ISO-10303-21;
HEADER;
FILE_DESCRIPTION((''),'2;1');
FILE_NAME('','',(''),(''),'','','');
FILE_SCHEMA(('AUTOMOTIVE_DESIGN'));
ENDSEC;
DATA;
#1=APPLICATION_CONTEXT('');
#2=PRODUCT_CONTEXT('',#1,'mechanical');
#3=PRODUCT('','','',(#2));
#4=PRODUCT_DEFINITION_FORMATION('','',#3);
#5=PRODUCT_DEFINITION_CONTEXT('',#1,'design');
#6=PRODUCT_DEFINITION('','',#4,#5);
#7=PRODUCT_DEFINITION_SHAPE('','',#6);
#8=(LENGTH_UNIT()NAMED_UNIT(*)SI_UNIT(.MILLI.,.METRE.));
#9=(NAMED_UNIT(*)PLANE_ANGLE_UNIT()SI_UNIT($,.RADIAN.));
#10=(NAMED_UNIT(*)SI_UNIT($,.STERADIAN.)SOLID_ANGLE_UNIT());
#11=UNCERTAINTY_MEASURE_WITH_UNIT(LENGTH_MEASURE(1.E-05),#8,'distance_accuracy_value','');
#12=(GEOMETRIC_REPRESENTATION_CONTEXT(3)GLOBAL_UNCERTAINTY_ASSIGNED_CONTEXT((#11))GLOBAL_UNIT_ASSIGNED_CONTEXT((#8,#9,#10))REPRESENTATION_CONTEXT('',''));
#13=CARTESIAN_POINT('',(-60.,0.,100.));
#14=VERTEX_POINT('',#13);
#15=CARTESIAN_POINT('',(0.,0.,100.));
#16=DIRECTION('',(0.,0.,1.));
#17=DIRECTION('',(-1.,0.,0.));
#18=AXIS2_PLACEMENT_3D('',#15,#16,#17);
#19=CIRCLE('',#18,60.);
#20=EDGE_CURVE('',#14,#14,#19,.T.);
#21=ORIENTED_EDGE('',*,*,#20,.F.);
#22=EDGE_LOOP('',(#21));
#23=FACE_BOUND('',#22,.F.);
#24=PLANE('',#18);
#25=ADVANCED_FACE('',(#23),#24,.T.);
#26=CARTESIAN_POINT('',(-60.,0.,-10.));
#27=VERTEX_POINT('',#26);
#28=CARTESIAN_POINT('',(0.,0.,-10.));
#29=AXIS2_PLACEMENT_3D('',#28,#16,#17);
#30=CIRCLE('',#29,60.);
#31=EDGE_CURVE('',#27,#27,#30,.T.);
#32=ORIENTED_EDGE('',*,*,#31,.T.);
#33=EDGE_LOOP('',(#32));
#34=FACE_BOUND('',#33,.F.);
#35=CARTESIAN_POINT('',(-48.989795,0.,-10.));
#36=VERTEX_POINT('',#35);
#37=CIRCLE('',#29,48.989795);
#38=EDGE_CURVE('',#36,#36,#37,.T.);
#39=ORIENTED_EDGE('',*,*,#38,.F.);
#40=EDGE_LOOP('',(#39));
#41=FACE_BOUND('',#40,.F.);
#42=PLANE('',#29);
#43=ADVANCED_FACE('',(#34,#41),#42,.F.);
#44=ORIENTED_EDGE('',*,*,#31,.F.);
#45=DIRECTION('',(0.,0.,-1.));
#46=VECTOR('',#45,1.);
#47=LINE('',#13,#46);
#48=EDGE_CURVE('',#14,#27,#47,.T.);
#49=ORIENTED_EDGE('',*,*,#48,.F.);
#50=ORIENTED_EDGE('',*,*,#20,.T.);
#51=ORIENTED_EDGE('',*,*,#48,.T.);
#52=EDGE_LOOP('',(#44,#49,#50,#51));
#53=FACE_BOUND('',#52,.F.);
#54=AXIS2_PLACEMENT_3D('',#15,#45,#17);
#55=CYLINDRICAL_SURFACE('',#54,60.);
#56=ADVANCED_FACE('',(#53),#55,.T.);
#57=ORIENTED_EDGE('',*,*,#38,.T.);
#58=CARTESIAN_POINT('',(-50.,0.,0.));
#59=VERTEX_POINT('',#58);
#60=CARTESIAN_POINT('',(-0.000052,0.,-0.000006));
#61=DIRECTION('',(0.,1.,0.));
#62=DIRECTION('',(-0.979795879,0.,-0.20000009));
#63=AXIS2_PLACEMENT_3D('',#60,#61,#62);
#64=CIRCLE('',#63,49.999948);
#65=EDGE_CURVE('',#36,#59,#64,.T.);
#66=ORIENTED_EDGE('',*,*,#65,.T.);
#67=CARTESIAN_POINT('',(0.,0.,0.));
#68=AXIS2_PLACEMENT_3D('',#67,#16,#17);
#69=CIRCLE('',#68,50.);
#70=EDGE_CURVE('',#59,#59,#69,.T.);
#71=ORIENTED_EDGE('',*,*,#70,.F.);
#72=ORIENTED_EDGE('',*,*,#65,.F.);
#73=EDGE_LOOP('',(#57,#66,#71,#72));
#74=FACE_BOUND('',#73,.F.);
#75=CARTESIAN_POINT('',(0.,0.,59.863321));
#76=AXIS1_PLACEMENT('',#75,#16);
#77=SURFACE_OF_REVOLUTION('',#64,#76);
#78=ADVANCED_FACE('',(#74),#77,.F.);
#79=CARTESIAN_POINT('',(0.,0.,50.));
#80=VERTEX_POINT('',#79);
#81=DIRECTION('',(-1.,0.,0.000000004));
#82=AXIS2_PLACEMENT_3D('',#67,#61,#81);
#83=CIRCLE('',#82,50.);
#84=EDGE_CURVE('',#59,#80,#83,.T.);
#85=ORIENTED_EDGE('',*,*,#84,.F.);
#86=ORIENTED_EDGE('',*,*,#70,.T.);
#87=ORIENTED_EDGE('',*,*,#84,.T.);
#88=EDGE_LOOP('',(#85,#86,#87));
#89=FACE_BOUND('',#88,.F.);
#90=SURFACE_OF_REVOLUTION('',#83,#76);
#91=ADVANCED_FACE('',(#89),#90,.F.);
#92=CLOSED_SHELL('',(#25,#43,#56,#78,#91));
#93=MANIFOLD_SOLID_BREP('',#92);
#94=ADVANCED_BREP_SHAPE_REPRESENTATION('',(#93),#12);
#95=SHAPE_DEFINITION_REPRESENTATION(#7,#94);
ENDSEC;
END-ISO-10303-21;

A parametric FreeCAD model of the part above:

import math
import FreeCAD as App
import Part
import Sketcher

V = App.Vector
Q = App.Units.Quantity

doc = App.newDocument("Part")
params = doc.addObject("Spreadsheet::Sheet", "Params")
for row, (alias, value) in enumerate([
    ("sketch1_radius", "50 mm"),
    ("sketch1_width", "60 mm"),
    ("sketch1_height", "50 mm"),
    ("sketch1_height2", "110 mm"),
    ("revolution_angle", "360 deg"),
], start=1):
    params.set(f"A{row}", alias)
    params.set(f"B{row}", "=" + value)
    params.setAlias(f"B{row}", alias)

body = doc.addObject("PartDesign::Body", "Body")

# Sketch on XZ plane
sketch1 = doc.addObject("Sketcher::SketchObject", "Sketch")
body.addObject(sketch1)
sketch1.AttachmentSupport = (doc.XZ_Plane, [""])
sketch1.MapMode = "FlatFace"
sketch1.addGeometry(Part.ArcOfCircle(Part.Circle(V(0, 0, 0), V(0, 0, 1), 50), math.radians(90), math.radians(180)), False)
sketch1.addGeometry(Part.LineSegment(V(0, 50, 0), V(0, 100, 0)), False)
sketch1.addGeometry(Part.LineSegment(V(0, 100, 0), V(-60, 100, 0)), False)
sketch1.addGeometry(Part.LineSegment(V(-60, 100, 0), V(-60, -10, 0)), False)
sketch1.addGeometry(Part.LineSegment(V(-60, -10, 0), V(-48.989795, -10, 0)), False)
sketch1.addGeometry(Part.ArcOfCircle(Part.Circle(V(-0.000052, -0.000006, 0), V(0, 0, 1), 49.999948), math.radians(179.999993), math.radians(191.536964)), False)
sketch1.addConstraint(Sketcher.Constraint("Coincident", 0, 1, 1, 1))
sketch1.addConstraint(Sketcher.Constraint("Coincident", 1, 2, 2, 1))
sketch1.addConstraint(Sketcher.Constraint("Coincident", 2, 2, 3, 1))
sketch1.addConstraint(Sketcher.Constraint("Coincident", 3, 2, 4, 1))
sketch1.addConstraint(Sketcher.Constraint("Coincident", 4, 2, 5, 2))
sketch1.addConstraint(Sketcher.Constraint("Tangent", 5, 1, 0, 2))
sketch1.addConstraint(Sketcher.Constraint("Vertical", 1))
sketch1.addConstraint(Sketcher.Constraint("Horizontal", 2))
sketch1.addConstraint(Sketcher.Constraint("Vertical", 3))
sketch1.addConstraint(Sketcher.Constraint("Horizontal", 4))
sketch1.addConstraint(Sketcher.Constraint("Coincident", 0, 3, -1, 1))
sketch1.addConstraint(Sketcher.Constraint("PointOnObject", 0, 1, -2))
sketch1.addConstraint(Sketcher.Constraint("PointOnObject", 5, 1, -1))
sketch1.addConstraint(Sketcher.Constraint("Radius", 0, Q("50 mm")))
sketch1.addConstraint(Sketcher.Constraint("DistanceX", 2, 2, 2, 1, Q("60 mm")))
sketch1.addConstraint(Sketcher.Constraint("DistanceY", 1, 1, 1, 2, Q("50 mm")))
sketch1.addConstraint(Sketcher.Constraint("DistanceY", 3, 2, 3, 1, Q("110 mm")))
sketch1.addConstraint(Sketcher.Constraint("Radius", 5, Q("49.999948 mm")))
sketch1.setExpression("Constraints[13]", "Params.sketch1_radius")
sketch1.setExpression("Constraints[14]", "Params.sketch1_width")
sketch1.setExpression("Constraints[15]", "Params.sketch1_height")
sketch1.setExpression("Constraints[16]", "Params.sketch1_height2")
revolution = doc.addObject("PartDesign::Revolution", "Revolution")
body.addObject(revolution)
revolution.Profile = sketch1
revolution.ReferenceAxis = (sketch1, ["V_Axis"])
revolution.setExpression("Angle", "Params.revolution_angle")

doc.recompute()
